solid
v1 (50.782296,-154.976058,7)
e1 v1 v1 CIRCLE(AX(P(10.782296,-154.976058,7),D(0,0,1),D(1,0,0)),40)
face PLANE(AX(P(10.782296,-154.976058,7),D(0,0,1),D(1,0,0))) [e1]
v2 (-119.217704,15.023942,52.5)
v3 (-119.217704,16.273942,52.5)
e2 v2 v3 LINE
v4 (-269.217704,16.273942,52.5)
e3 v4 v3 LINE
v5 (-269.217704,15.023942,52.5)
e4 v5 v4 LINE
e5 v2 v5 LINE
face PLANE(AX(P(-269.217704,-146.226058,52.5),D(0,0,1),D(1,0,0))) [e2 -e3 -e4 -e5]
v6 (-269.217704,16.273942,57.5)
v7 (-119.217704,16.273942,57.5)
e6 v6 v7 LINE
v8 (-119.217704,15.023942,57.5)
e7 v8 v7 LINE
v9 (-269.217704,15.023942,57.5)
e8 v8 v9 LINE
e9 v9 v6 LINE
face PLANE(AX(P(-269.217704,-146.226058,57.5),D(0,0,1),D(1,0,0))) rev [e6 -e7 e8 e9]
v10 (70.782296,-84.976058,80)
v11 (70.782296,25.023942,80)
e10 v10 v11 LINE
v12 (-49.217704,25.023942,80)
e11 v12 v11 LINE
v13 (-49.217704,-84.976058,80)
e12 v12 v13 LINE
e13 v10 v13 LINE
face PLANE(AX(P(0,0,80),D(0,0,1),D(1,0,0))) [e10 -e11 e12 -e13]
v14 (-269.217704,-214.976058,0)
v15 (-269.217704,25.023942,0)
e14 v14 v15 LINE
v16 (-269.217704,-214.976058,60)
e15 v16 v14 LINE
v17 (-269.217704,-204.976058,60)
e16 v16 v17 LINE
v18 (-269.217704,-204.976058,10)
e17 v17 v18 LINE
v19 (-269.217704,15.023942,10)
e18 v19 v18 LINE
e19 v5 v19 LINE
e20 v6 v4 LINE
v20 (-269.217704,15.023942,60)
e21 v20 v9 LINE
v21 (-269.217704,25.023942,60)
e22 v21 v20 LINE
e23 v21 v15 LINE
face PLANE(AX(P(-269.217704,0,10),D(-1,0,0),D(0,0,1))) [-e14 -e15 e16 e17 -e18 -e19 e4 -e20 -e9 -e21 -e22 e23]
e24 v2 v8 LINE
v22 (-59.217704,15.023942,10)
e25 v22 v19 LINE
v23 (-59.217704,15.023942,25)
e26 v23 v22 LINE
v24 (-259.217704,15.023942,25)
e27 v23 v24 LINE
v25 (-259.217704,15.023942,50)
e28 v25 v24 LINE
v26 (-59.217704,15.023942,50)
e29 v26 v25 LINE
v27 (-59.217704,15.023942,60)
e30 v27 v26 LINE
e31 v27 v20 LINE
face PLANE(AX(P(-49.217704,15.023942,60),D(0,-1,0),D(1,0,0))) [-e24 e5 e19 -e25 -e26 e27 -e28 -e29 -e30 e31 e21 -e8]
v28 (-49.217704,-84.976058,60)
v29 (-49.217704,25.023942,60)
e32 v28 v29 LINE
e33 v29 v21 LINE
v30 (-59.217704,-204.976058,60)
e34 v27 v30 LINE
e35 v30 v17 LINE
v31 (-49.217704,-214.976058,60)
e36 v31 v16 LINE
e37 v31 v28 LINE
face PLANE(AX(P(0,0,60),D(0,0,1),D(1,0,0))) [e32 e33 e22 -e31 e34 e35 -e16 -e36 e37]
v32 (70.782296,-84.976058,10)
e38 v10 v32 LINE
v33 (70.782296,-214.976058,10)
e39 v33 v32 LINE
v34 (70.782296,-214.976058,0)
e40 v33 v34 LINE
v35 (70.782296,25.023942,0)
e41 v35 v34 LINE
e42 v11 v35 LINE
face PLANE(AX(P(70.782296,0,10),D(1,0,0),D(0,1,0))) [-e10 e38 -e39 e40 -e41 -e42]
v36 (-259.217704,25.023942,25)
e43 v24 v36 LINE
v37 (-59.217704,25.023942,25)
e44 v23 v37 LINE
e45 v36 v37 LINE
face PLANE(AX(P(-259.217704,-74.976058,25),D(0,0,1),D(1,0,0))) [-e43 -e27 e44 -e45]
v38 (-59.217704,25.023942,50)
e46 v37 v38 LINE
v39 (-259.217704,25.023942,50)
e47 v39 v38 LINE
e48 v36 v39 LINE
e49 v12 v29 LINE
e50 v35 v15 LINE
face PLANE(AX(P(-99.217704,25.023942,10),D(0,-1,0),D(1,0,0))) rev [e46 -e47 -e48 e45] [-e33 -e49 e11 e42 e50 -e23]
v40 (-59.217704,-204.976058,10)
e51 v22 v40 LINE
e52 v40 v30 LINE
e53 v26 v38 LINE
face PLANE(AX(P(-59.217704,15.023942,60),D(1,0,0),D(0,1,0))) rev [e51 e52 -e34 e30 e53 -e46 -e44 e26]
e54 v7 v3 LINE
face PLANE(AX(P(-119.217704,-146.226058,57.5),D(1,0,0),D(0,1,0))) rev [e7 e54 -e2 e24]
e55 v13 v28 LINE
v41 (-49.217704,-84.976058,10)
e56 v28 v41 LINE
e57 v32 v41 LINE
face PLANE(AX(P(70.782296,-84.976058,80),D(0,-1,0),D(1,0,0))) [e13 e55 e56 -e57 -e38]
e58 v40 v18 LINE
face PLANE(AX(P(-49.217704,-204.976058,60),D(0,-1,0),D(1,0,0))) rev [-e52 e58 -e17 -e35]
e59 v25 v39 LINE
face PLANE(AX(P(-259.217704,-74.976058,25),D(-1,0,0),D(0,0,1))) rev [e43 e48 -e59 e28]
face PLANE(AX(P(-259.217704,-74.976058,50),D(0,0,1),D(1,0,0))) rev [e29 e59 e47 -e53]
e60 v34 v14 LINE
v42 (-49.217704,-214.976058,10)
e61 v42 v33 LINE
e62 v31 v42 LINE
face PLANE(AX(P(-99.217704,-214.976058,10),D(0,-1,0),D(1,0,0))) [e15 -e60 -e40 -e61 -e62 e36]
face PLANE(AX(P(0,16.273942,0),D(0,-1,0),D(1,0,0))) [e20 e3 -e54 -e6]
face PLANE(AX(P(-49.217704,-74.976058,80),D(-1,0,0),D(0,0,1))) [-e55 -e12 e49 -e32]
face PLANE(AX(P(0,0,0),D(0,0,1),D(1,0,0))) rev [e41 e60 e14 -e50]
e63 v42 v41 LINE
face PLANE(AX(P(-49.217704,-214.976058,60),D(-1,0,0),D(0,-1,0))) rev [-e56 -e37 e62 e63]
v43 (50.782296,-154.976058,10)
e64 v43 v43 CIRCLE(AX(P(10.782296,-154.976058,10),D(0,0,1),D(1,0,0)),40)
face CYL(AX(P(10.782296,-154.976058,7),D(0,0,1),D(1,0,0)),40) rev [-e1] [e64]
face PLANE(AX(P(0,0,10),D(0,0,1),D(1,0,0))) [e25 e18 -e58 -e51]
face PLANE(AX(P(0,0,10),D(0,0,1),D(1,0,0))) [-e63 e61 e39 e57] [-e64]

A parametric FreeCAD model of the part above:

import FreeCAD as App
import Part
import Sketcher
from FreeCAD import Vector
Q = App.Units.Quantity


def add_polygon(sketch, points):
    """Adds a closed chain of lines whose ends are joined by coincident constraints."""
    first, n = sketch.GeometryCount, len(points)
    for a, b in zip(points, points[1:] + points[:1]):
        sketch.addGeometry(Part.LineSegment(App.Vector(*a, 0), App.Vector(*b, 0)), False)
    for i in range(n):
        sketch.addConstraint(Sketcher.Constraint("Coincident", first + i, 2, first + (i + 1) % n, 1))

doc = App.newDocument("Part")
body = doc.addObject("PartDesign::Body", "Body")

sketch1 = body.newObject("Sketcher::SketchObject", "Sketch")
sketch1.AttachmentSupport = (doc.getObject("XY_Plane"), [""])
sketch1.MapMode = "FlatFace"
add_polygon(sketch1, [(70.782296, 25.023942), (-269.217704, 25.023942), (-269.217704, -214.976058), (70.782296, -214.976058)])
sketch1.addConstraint(Sketcher.Constraint("Horizontal", 0))
sketch1.addConstraint(Sketcher.Constraint("Vertical", 1))
sketch1.addConstraint(Sketcher.Constraint("Horizontal", 2))
sketch1.addConstraint(Sketcher.Constraint("Vertical", 3))
sketch1.addConstraint(Sketcher.Constraint("DistanceX", 0, 2, 0, 1, Q("340 mm")))
sketch1.addConstraint(Sketcher.Constraint("DistanceY", 1, 2, 1, 1, Q("240 mm")))
sketch1.addConstraint(Sketcher.Constraint("DistanceX", 0, 2, -1, 1, Q("269.217704 mm")))
sketch1.addConstraint(Sketcher.Constraint("DistanceY", -1, 1, 0, 2, Q("25.023942 mm")))
pad1 = body.newObject("PartDesign::Pad", "Pad")
pad1.Profile = sketch1
pad1.Length = 10

sketch2 = body.newObject("Sketcher::SketchObject", "Sketch001")
sketch2.AttachmentSupport = (doc.getObject("XY_Plane"), [""])
sketch2.MapMode = "FlatFace"
sketch2.AttachmentOffset = App.Placement(Vector(0, 0, 10), App.Rotation())
add_polygon(sketch2, [(-49.217704, -214.976058), (-49.217704, 25.023942), (-269.217704, 25.023942), (-269.217704, 15.023942), (-59.217704, 15.023942), (-59.217704, -204.976058), (-269.217704, -204.976058), (-269.217704, -214.976058)])
sketch2.addConstraint(Sketcher.Constraint("Vertical", 0))
sketch2.addConstraint(Sketcher.Constraint("Horizontal", 1))
sketch2.addConstraint(Sketcher.Constraint("Vertical", 2))
sketch2.addConstraint(Sketcher.Constraint("Horizontal", 3))
sketch2.addConstraint(Sketcher.Constraint("Vertical", 4))
sketch2.addConstraint(Sketcher.Constraint("Horizontal", 5))
sketch2.addConstraint(Sketcher.Constraint("Vertical", 6))
sketch2.addConstraint(Sketcher.Constraint("Horizontal", 7))
sketch2.addConstraint(Sketcher.Constraint("Vertical", 2, 2, 5, 2))
sketch2.addConstraint(Sketcher.Constraint("Equal", 7, 4))
sketch2.addConstraint(Sketcher.Constraint("Equal", 2, 6))
sketch2.addConstraint(Sketcher.Constraint("DistanceX", 1, 2, 1, 1, Q("220 mm")))
sketch2.addConstraint(Sketcher.Constraint("DistanceX", 3, 1, 3, 2, Q("210 mm")))
sketch2.addConstraint(Sketcher.Constraint("DistanceY", 0, 1, 0, 2, Q("240 mm")))
sketch2.addConstraint(Sketcher.Constraint("DistanceX", 0, 2, -1, 1, Q("49.217704 mm")))
sketch2.addConstraint(Sketcher.Constraint("DistanceY", -1, 1, 0, 2, Q("25.023942 mm")))
pad2 = body.newObject("PartDesign::Pad", "Pad001")
pad2.Profile = sketch2
pad2.Length = 50

sketch3 = body.newObject("Sketcher::SketchObject", "Sketch002")
sketch3.AttachmentSupport = (doc.getObject("XY_Plane"), [""])
sketch3.MapMode = "FlatFace"
sketch3.AttachmentOffset = App.Placement(Vector(0, 0, 10), App.Rotation())
sketch3.addGeometry(Part.Circle(Vector(10.782296, -154.976058, 0), Vector(0, 0, 1), 40), False)
sketch3.addConstraint(Sketcher.Constraint("Diameter", 0, Q("80 mm")))
sketch3.addConstraint(Sketcher.Constraint("DistanceX", -1, 1, 0, 3, Q("10.782296 mm")))
sketch3.addConstraint(Sketcher.Constraint("DistanceY", 0, 3, -1, 1, Q("154.976058 mm")))
pocket1 = body.newObject("PartDesign::Pocket", "Pocket")
pocket1.Profile = sketch3
pocket1.Length = 3

sketch4 = body.newObject("Sketcher::SketchObject", "Sketch003")
sketch4.AttachmentSupport = (doc.getObject("XZ_Plane"), [""])
sketch4.MapMode = "FlatFace"
sketch4.AttachmentOffset = App.Placement(Vector(0, 0, -25.023942), App.Rotation())
add_polygon(sketch4, [(-259.217704, 25), (-259.217704, 50), (-59.217704, 50), (-59.217704, 25)])
sketch4.addConstraint(Sketcher.Constraint("Vertical", 0))
sketch4.addConstraint(Sketcher.Constraint("Horizontal", 1))
sketch4.addConstraint(Sketcher.Constraint("Vertical", 2))
sketch4.addConstraint(Sketcher.Constraint("Horizontal", 3))
sketch4.addConstraint(Sketcher.Constraint("DistanceX", 1, 1, 1, 2, Q("200 mm")))
sketch4.addConstraint(Sketcher.Constraint("DistanceY", 0, 1, 0, 2, Q("25 mm")))
sketch4.addConstraint(Sketcher.Constraint("DistanceY", -1, 1, 0, 2, Q("50 mm")))
sketch4.addConstraint(Sketcher.Constraint("DistanceX", 0, 2, -1, 1, Q("259.217704 mm")))
pocket2 = body.newObject("PartDesign::Pocket", "Pocket001")
pocket2.Profile = sketch4
pocket2.Length = 100
pocket2.Reversed = True

sketch5 = body.newObject("Sketcher::SketchObject", "Sketch004")
sketch5.AttachmentSupport = (doc.getObject("XZ_Plane"), [""])
sketch5.MapMode = "FlatFace"
sketch5.AttachmentOffset = App.Placement(Vector(0, 0, -15.023942), App.Rotation())
add_polygon(sketch5, [(-269.217704, 57.5), (-269.217704, 52.5), (-119.217704, 52.5), (-119.217704, 57.5)])
sketch5.addConstraint(Sketcher.Constraint("Vertical", 0))
sketch5.addConstraint(Sketcher.Constraint("Horizontal", 1))
sketch5.addConstraint(Sketcher.Constraint("Vertical", 2))
sketch5.addConstraint(Sketcher.Constraint("Horizontal", 3))
sketch5.addConstraint(Sketcher.Constraint("DistanceX", 1, 1, 1, 2, Q("150 mm")))
sketch5.addConstraint(Sketcher.Constraint("DistanceY", 0, 2, 0, 1, Q("5 mm")))
sketch5.addConstraint(Sketcher.Constraint("DistanceY", -1, 1, 0, 2, Q("52.5 mm")))
sketch5.addConstraint(Sketcher.Constraint("DistanceX", 0, 2, -1, 1, Q("269.217704 mm")))
pocket3 = body.newObject("PartDesign::Pocket", "Pocket002")
pocket3.Profile = sketch5
pocket3.Type = "TwoLengths"
pocket3.Length = 161.25
pocket3.Length2 = 1.25
pocket3.Reversed = True

sketch6 = body.newObject("Sketcher::SketchObject", "Sketch005")
sketch6.AttachmentSupport = (doc.getObject("XY_Plane"), [""])
sketch6.MapMode = "FlatFace"
sketch6.AttachmentOffset = App.Placement(Vector(0, 0, 10), App.Rotation())
add_polygon(sketch6, [(70.782296, -84.976058), (70.782296, 25.023942), (-49.217704, 25.023942), (-49.217704, -84.976058)])
sketch6.addConstraint(Sketcher.Constraint("Vertical", 0))
sketch6.addConstraint(Sketcher.Constraint("Horizontal", 1))
sketch6.addConstraint(Sketcher.Constraint("Vertical", 2))
sketch6.addConstraint(Sketcher.Constraint("Horizontal", 3))
sketch6.addConstraint(Sketcher.Constraint("DistanceX", 1, 2, 1, 1, Q("120 mm")))
sketch6.addConstraint(Sketcher.Constraint("DistanceY", 0, 1, 0, 2, Q("110 mm")))
sketch6.addConstraint(Sketcher.Constraint("DistanceX", -1, 1, 0, 2, Q("70.782296 mm")))
sketch6.addConstraint(Sketcher.Constraint("DistanceY", -1, 1, 0, 2, Q("25.023942 mm")))
pad3 = body.newObject("PartDesign::Pad", "Pad002")
pad3.Profile = sketch6
pad3.Length = 70

doc.recompute()
